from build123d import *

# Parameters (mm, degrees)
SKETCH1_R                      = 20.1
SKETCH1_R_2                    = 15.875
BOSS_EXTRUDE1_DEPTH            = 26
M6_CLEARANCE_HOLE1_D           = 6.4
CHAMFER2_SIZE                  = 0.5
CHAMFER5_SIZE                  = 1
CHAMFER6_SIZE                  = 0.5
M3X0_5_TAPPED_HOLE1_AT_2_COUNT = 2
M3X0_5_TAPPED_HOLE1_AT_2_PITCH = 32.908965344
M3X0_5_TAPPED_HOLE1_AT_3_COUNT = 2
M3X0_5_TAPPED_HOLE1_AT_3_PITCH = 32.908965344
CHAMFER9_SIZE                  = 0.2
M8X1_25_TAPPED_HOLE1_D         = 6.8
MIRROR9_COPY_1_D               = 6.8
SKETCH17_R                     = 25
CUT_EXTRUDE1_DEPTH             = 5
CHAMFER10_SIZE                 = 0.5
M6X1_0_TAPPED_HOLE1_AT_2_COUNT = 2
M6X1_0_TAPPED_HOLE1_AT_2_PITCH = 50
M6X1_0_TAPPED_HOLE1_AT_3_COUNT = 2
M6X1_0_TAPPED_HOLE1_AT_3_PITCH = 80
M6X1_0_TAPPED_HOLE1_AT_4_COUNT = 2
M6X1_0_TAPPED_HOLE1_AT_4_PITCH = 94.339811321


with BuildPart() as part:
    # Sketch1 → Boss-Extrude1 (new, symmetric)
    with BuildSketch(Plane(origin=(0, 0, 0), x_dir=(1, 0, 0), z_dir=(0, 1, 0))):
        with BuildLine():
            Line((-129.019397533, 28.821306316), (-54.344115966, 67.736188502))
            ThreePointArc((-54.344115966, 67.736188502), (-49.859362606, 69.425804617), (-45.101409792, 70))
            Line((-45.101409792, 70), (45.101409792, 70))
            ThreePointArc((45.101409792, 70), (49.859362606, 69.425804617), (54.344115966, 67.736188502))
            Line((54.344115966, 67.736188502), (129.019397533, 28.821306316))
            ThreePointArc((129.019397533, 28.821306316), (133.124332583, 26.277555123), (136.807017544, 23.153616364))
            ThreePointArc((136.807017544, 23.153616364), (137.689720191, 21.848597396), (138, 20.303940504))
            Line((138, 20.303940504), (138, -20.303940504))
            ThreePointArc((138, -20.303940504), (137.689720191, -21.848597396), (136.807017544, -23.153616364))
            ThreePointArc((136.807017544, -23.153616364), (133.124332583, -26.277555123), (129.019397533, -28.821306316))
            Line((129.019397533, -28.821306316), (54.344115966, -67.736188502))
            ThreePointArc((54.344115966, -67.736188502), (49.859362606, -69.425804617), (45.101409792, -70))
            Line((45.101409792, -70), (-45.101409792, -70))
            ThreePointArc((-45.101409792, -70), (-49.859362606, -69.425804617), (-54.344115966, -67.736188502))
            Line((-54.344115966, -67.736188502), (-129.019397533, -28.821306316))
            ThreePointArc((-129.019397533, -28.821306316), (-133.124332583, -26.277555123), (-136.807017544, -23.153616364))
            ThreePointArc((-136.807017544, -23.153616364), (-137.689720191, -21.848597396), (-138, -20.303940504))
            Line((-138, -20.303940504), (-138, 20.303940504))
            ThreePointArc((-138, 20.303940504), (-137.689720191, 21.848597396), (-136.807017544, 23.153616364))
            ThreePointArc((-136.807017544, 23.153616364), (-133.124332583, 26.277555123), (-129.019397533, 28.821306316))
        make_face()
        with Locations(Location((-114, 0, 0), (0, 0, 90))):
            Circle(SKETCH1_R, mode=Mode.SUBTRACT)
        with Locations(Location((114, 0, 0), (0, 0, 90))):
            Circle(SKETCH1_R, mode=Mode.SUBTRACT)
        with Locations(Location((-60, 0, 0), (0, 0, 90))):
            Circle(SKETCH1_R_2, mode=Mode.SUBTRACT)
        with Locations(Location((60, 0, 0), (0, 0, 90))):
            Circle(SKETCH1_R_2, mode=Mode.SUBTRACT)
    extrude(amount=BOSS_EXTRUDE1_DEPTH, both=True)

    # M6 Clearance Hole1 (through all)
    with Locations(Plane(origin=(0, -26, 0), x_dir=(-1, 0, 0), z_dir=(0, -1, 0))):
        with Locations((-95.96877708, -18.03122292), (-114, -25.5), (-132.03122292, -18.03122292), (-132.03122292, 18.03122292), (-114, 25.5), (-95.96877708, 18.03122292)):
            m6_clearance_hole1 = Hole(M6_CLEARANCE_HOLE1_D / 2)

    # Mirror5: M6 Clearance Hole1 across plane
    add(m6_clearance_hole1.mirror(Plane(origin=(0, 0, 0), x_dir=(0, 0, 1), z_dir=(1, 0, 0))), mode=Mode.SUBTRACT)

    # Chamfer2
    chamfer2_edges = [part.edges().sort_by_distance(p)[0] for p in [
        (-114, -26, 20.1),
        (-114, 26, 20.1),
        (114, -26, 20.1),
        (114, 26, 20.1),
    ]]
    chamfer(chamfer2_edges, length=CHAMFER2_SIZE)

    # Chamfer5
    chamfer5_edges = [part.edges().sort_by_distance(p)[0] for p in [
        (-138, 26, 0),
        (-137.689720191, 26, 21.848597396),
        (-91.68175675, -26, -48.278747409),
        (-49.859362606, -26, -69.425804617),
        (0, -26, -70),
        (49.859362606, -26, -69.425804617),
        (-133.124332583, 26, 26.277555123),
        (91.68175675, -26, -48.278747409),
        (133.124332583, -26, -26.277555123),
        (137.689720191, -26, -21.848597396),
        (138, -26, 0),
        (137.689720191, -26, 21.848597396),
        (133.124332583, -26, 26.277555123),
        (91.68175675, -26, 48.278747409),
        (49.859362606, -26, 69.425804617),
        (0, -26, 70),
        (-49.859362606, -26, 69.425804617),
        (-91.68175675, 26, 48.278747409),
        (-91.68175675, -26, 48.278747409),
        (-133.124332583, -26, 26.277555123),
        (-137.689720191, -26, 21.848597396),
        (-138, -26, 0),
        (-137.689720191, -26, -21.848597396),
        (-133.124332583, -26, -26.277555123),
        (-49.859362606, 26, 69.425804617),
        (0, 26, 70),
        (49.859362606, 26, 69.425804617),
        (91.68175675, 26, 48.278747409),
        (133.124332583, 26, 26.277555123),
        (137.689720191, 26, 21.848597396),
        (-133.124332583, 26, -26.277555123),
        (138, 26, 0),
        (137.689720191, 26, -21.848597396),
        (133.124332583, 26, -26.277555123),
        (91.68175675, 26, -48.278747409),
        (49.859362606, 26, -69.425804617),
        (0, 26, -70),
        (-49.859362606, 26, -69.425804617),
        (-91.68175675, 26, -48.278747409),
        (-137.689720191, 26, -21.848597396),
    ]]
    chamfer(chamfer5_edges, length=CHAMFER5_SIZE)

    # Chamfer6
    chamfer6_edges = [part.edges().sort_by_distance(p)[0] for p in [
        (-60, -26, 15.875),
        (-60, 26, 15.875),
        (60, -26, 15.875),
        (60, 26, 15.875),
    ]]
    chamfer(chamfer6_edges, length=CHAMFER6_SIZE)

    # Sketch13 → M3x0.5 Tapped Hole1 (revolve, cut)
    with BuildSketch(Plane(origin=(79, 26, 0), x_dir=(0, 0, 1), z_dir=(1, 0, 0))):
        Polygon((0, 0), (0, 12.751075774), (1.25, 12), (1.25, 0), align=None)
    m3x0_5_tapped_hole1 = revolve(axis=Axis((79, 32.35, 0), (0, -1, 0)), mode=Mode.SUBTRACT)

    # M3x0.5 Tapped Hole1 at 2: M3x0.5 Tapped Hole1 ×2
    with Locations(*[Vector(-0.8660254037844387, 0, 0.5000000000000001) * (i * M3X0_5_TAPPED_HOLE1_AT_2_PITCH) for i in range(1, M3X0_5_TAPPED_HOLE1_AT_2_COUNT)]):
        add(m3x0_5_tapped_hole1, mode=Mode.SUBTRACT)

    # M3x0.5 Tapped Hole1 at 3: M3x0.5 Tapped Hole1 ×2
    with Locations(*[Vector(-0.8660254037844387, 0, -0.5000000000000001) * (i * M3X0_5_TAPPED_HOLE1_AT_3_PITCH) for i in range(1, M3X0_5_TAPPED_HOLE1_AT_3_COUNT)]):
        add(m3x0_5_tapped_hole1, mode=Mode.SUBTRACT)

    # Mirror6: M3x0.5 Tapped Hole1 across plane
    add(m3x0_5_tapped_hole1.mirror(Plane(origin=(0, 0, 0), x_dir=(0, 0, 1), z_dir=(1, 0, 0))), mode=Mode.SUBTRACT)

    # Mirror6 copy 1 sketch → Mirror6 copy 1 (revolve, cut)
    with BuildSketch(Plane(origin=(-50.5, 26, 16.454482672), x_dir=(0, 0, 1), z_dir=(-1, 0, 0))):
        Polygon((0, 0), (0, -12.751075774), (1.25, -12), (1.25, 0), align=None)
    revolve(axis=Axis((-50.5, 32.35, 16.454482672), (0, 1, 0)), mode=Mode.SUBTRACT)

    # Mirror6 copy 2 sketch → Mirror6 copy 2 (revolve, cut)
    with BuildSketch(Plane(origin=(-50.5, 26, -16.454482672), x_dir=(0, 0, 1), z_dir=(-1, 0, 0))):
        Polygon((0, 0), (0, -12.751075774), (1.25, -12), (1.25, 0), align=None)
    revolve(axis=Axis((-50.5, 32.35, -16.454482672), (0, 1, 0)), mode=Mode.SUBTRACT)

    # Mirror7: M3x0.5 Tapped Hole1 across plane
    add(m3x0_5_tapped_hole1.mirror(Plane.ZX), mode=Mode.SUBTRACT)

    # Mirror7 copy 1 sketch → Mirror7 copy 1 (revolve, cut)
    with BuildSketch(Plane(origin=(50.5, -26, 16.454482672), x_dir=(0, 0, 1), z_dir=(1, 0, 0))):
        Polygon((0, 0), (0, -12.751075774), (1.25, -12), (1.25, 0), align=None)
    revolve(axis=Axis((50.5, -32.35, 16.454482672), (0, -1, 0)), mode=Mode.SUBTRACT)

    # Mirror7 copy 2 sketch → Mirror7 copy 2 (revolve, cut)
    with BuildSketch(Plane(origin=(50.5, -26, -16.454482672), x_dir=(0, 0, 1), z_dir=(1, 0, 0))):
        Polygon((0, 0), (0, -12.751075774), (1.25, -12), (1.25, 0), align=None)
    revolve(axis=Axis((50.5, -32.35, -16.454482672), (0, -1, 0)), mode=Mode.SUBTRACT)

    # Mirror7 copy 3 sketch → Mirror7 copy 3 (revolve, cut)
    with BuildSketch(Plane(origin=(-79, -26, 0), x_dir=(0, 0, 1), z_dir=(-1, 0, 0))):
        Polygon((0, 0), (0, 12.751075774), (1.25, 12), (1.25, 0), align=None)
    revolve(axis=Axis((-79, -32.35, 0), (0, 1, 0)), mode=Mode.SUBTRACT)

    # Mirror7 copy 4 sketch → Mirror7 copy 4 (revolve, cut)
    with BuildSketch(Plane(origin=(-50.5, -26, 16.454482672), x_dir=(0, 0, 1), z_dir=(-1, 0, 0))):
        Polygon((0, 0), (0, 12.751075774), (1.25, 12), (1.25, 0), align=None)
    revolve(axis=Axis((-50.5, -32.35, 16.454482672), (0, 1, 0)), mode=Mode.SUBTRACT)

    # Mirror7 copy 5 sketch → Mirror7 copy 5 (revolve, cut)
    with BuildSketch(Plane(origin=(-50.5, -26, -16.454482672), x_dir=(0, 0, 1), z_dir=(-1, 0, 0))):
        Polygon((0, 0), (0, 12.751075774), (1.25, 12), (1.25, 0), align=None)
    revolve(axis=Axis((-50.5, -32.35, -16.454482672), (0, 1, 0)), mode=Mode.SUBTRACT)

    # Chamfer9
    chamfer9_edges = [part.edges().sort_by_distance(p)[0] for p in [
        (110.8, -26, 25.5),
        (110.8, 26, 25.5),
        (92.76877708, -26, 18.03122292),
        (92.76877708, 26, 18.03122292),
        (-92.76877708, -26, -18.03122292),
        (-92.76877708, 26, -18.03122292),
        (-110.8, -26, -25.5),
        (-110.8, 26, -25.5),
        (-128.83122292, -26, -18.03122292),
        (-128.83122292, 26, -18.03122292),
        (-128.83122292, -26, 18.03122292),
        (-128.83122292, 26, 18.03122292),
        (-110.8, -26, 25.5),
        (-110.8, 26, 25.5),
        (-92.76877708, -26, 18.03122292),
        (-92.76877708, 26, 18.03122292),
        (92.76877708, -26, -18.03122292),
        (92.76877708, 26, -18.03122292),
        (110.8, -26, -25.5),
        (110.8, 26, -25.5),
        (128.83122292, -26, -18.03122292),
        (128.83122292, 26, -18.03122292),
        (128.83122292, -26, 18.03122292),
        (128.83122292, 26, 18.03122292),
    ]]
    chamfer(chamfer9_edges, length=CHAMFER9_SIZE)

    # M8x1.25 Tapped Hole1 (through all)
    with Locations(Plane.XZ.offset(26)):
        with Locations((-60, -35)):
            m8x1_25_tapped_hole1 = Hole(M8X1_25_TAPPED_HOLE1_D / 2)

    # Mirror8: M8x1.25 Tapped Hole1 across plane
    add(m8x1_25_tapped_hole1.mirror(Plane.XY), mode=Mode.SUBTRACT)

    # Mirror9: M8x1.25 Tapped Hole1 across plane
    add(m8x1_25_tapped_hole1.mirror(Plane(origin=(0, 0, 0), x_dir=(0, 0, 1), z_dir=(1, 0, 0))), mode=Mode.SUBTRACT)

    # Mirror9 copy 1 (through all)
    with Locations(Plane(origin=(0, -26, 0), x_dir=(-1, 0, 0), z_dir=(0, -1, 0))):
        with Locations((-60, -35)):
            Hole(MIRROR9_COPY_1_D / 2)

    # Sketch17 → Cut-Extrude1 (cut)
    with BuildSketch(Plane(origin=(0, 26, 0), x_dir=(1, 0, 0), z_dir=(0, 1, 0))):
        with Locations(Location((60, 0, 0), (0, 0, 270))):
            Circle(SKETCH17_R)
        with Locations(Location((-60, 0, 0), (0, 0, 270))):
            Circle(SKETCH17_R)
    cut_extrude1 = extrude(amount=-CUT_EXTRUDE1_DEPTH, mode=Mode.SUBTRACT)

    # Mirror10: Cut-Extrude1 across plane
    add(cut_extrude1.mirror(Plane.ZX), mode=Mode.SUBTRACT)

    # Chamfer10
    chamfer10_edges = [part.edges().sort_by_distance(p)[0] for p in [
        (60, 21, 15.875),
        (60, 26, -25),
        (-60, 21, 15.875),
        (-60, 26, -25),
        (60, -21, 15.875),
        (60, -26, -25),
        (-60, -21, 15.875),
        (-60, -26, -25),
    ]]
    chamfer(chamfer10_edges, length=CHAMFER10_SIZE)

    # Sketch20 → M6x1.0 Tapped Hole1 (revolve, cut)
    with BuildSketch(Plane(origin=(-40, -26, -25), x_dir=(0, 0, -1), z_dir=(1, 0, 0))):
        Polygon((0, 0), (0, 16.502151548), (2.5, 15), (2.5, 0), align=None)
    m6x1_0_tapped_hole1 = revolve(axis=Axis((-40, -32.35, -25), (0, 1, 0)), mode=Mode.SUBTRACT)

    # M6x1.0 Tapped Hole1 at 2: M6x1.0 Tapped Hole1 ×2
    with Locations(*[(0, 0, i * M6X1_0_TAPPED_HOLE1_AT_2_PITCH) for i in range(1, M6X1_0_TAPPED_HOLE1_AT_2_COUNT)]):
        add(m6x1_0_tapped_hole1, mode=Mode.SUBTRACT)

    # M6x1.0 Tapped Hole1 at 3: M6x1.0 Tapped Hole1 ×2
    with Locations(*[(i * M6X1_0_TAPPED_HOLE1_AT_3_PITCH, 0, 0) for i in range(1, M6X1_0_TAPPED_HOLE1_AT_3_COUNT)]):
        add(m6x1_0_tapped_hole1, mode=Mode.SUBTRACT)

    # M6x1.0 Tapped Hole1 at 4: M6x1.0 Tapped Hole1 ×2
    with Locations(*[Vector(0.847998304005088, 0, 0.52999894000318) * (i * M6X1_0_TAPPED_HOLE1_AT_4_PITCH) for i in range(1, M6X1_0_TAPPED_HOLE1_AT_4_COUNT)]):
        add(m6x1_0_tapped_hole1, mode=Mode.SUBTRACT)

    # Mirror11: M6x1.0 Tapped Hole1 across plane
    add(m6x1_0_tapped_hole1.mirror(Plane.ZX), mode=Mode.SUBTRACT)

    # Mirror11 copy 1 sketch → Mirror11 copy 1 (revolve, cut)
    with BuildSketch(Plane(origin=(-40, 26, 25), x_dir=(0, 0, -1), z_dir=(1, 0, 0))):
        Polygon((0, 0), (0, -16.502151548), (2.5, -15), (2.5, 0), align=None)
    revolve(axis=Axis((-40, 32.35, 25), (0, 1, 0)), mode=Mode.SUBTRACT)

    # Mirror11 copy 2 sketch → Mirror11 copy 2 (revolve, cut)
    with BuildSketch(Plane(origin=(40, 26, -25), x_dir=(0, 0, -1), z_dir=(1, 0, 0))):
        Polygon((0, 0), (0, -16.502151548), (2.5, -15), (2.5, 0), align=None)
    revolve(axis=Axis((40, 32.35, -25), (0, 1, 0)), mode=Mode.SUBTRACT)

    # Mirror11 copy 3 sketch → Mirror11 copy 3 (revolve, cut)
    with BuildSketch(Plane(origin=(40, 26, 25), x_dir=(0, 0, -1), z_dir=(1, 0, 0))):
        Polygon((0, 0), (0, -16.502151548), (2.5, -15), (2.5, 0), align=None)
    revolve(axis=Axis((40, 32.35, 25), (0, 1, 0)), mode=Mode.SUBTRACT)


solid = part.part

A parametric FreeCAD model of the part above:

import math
import FreeCAD as App
import Part
import Sketcher
Q = App.Units.Quantity


def edges_at(feature, points):
    """Names of the edges that pass closest to the given points."""
    edges = feature.Shape.Edges
    near = lambda p: min(range(len(edges)), key=lambda i: edges[i].distToShape(Part.Vertex(*p))[0])
    return sorted({f"Edge{near(p) + 1}" for p in points})


def add_polygon(sketch, points):
    """Adds a closed chain of lines whose ends are joined by coincident constraints."""
    first, n = sketch.GeometryCount, len(points)
    for a, b in zip(points, points[1:] + points[:1]):
        sketch.addGeometry(Part.LineSegment(App.Vector(*a, 0), App.Vector(*b, 0)), False)
    for i in range(n):
        sketch.addConstraint(Sketcher.Constraint("Coincident", first + i, 2, first + (i + 1) % n, 1))

doc = App.newDocument("Part")
body = doc.addObject("PartDesign::Body", "Body")

sketch1 = body.newObject("Sketcher::SketchObject", "Sketch")
sketch1.AttachmentSupport = (doc.getObject("XZ_Plane"), [""])
sketch1.MapMode = "FlatFace"
sketch1.addGeometry([
    Part.LineSegment(App.Vector(-54.344116, -67.736189, 0), App.Vector(-129.019398, -28.821306, 0)),
    Part.ArcOfCircle(Part.Circle(App.Vector(-114, 0, 0), App.Vector(0, 0, 1), 32.5), math.radians(-134.567929), math.radians(-117.524981)),
    Part.ArcOfCircle(Part.Circle(App.Vector(-134, -20.303941, 0), App.Vector(0, 0, 1), 4), math.radians(180), math.radians(225.432071)),
    Part.LineSegment(App.Vector(-138, -20.303941, 0), App.Vector(-138, 20.303941, 0)),
    Part.ArcOfCircle(Part.Circle(App.Vector(-134, 20.303941, 0), App.Vector(0, 0, 1), 4), math.radians(134.567929), math.radians(180)),
    Part.ArcOfCircle(Part.Circle(App.Vector(-114, 0, 0), App.Vector(0, 0, 1), 32.5), math.radians(117.524981), math.radians(134.567929)),
    Part.LineSegment(App.Vector(-129.019398, 28.821306, 0), App.Vector(-54.344116, 67.736189, 0)),
    Part.ArcOfCircle(Part.Circle(App.Vector(-45.10141, 50, 0), App.Vector(0, 0, 1), 20), math.radians(90), math.radians(117.524981)),
    Part.LineSegment(App.Vector(-45.10141, 70, 0), App.Vector(45.10141, 70, 0)),
    Part.ArcOfCircle(Part.Circle(App.Vector(45.10141, 50, 0), App.Vector(0, 0, 1), 20), math.radians(62.475019), math.radians(90)),
    Part.LineSegment(App.Vector(54.344116, 67.736189, 0), App.Vector(129.019398, 28.821306, 0)),
    Part.ArcOfCircle(Part.Circle(App.Vector(114, 0, 0), App.Vector(0, 0, 1), 32.5), math.radians(45.432071), math.radians(62.475019)),
    Part.ArcOfCircle(Part.Circle(App.Vector(134, 20.303941, 0), App.Vector(0, 0, 1), 4), math.radians(0), math.radians(45.432071)),
    Part.LineSegment(App.Vector(138, 20.303941, 0), App.Vector(138, -20.303941, 0)),
    Part.ArcOfCircle(Part.Circle(App.Vector(134, -20.303941, 0), App.Vector(0, 0, 1), 4), math.radians(-45.432071), math.radians(0)),
    Part.ArcOfCircle(Part.Circle(App.Vector(114, 0, 0), App.Vector(0, 0, 1), 32.5), math.radians(-62.475019), math.radians(-45.432071)),
    Part.LineSegment(App.Vector(129.019398, -28.821306, 0), App.Vector(54.344116, -67.736189, 0)),
    Part.ArcOfCircle(Part.Circle(App.Vector(45.10141, -50, 0), App.Vector(0, 0, 1), 20), math.radians(-90), math.radians(-62.475019)),
    Part.LineSegment(App.Vector(45.10141, -70, 0), App.Vector(-45.10141, -70, 0)),
    Part.ArcOfCircle(Part.Circle(App.Vector(-45.10141, -50, 0), App.Vector(0, 0, 1), 20), math.radians(-117.524981), math.radians(-90)),
    Part.Circle(App.Vector(114, 0, 0), App.Vector(0, 0, 1), 20.1),
    Part.Circle(App.Vector(60, 0, 0), App.Vector(0, 0, 1), 15.875),
    Part.Circle(App.Vector(-60, 0, 0), App.Vector(0, 0, 1), 15.875),
    Part.Circle(App.Vector(-114, 0, 0), App.Vector(0, 0, 1), 20.1),
], False)
sketch1.addConstraint([
    Sketcher.Constraint("Tangent", 0, 2, 1, 2),
    Sketcher.Constraint("Tangent", 1, 1, 2, 2),
    Sketcher.Constraint("Tangent", 2, 1, 3, 1),
    Sketcher.Constraint("Tangent", 3, 2, 4, 2),
    Sketcher.Constraint("Tangent", 4, 1, 5, 2),
    Sketcher.Constraint("Tangent", 5, 1, 6, 1),
    Sketcher.Constraint("Tangent", 6, 2, 7, 2),
    Sketcher.Constraint("Tangent", 7, 1, 8, 1),
    Sketcher.Constraint("Tangent", 8, 2, 9, 2),
    Sketcher.Constraint("Tangent", 9, 1, 10, 1),
    Sketcher.Constraint("Tangent", 10, 2, 11, 2),
    Sketcher.Constraint("Tangent", 11, 1, 12, 2),
    Sketcher.Constraint("Tangent", 12, 1, 13, 1),
    Sketcher.Constraint("Tangent", 13, 2, 14, 2),
    Sketcher.Constraint("Tangent", 14, 1, 15, 2),
    Sketcher.Constraint("Tangent", 15, 1, 16, 1),
    Sketcher.Constraint("Tangent", 16, 2, 17, 2),
    Sketcher.Constraint("Tangent", 17, 1, 18, 1),
    Sketcher.Constraint("Tangent", 18, 2, 19, 2),
    Sketcher.Constraint("Tangent", 19, 1, 0, 1),
    Sketcher.Constraint("Vertical", 3),
    Sketcher.Constraint("Horizontal", 8),
    Sketcher.Constraint("Vertical", 13),
    Sketcher.Constraint("Horizontal", 18),
    Sketcher.Constraint("Coincident", 5, 3, 1, 3),
    Sketcher.Constraint("Coincident", 15, 3, 11, 3),
    Sketcher.Constraint("Coincident", 20, 3, 11, 3),
    Sketcher.Constraint("Coincident", 23, 3, 1, 3),
    Sketcher.Constraint("Equal", 2, 4),
    Sketcher.Constraint("Equal", 1, 5),
    Sketcher.Constraint("Equal", 7, 9),
    Sketcher.Constraint("Equal", 5, 11),
    Sketcher.Constraint("Equal", 4, 12),
    Sketcher.Constraint("Equal", 12, 14),
    Sketcher.Constraint("Equal", 11, 15),
    Sketcher.Constraint("Equal", 9, 17),
    Sketcher.Constraint("Equal", 17, 19),
    Sketcher.Constraint("Equal", 21, 22),
    Sketcher.Constraint("Equal", 20, 23),
    Sketcher.Constraint("Symmetric", 1, 3, 11, 3, -1, 1),
    Sketcher.Constraint("Symmetric", 7, 3, 17, 3, -1, 1),
    Sketcher.Constraint("Symmetric", 21, 3, 22, 3, -1, 1),
    Sketcher.Constraint("Symmetric", 4, 3, 12, 3, -2),
    Sketcher.Constraint("PointOnObject", 21, 3, -1),
    Sketcher.Constraint("Parallel", 0, 10),
    Sketcher.Constraint("Horizontal", 6, 2, 9, 1),
    Sketcher.Constraint("Radius", 2, Q("4 mm")),
    Sketcher.Constraint("Radius", 7, Q("20 mm")),
    Sketcher.Constraint("Diameter", 20, Q("40.2 mm")),
    Sketcher.Constraint("Radius", 1, Q("32.5 mm")),
    Sketcher.Constraint("Diameter", 21, Q("31.75 mm")),
    Sketcher.Constraint("DistanceX", 1, 3, -1, 1, Q("114 mm")),
    Sketcher.Constraint("DistanceX", 2, 3, -1, 1, Q("134 mm")),
    Sketcher.Constraint("DistanceY", -1, 1, 7, 3, Q("50 mm")),
    Sketcher.Constraint("DistanceX", -1, 1, 21, 3, Q("60 mm")),
    Sketcher.Constraint("DistanceX", 8, 1, 8, 2, Q("90.20282 mm")),
])
pad1 = body.newObject("PartDesign::Pad", "Pad")
pad1.Profile = sketch1
pad1.Length = 52
pad1.Midplane = True

sketch2 = body.newObject("Sketcher::SketchObject", "Sketch001")
sketch2.AttachmentSupport = (doc.getObject("XZ_Plane"), [""])
sketch2.MapMode = "FlatFace"
sketch2.AttachmentOffset = App.Placement(App.Vector(0, 0, 26), App.Rotation())
sketch2.addGeometry([
    Part.Circle(App.Vector(95.968777, 18.031223, 0), App.Vector(0, 0, 1), 3.2),
    Part.Circle(App.Vector(114, 25.5, 0), App.Vector(0, 0, 1), 3.2),
    Part.Circle(App.Vector(132.031223, 18.031223, 0), App.Vector(0, 0, 1), 3.2),
    Part.Circle(App.Vector(132.031223, -18.031223, 0), App.Vector(0, 0, 1), 3.2),
    Part.Circle(App.Vector(114, -25.5, 0), App.Vector(0, 0, 1), 3.2),
    Part.Circle(App.Vector(95.968777, -18.031223, 0), App.Vector(0, 0, 1), 3.2),
], False)
sketch2.addConstraint([
    Sketcher.Constraint("Equal", 0, 1),
    Sketcher.Constraint("Equal", 1, 2),
    Sketcher.Constraint("Equal", 2, 3),
    Sketcher.Constraint("Equal", 3, 4),
    Sketcher.Constraint("Equal", 4, 5),
    Sketcher.Constraint("Symmetric", 2, 3, 3, 3, -1),
    Sketcher.Constraint("Symmetric", 1, 3, 4, 3, -1),
    Sketcher.Constraint("Symmetric", 0, 3, 5, 3, -1),
    Sketcher.Constraint("Horizontal", 0, 3, 2, 3),
    Sketcher.Constraint("Diameter", 0, Q("6.4 mm")),
    Sketcher.Constraint("DistanceX", -1, 1, 1, 3, Q("114 mm")),
    Sketcher.Constraint("DistanceY", 4, 3, 1, 3, Q("51 mm")),
    Sketcher.Constraint("DistanceX", -1, 1, 0, 3, Q("95.968777 mm")),
    Sketcher.Constraint("DistanceY", -1, 1, 0, 3, Q("18.031223 mm")),
    Sketcher.Constraint("DistanceX", -1, 1, 2, 3, Q("132.031223 mm")),
])
doc.recompute()
hole = body.newObject("PartDesign::Hole", "Hole")
hole.Profile = sketch2
hole.ThreadType = "None"
hole.Diameter = 6.4
hole.DepthType = "ThroughAll"
doc.recompute()

mirrored = body.newObject("PartDesign::Mirrored", "Mirrored")
mirrored.Originals = [hole]
mirrored.MirrorPlane = (doc.getObject("YZ_Plane"), [""])
body.Tip = mirrored
doc.recompute()

chamfer = body.newObject("PartDesign::Chamfer", "Chamfer")
chamfer.Base = (mirrored, edges_at(mirrored, [
    (-114, -26, 20.1),
    (-114, 26, 20.1),
    (114, -26, 20.1),
    (114, 26, 20.1),
]))
chamfer.Size = 0.5
doc.recompute()

chamfer2 = body.newObject("PartDesign::Chamfer", "Chamfer001")
chamfer2.Base = (chamfer, edges_at(chamfer, [
    (-138, 26, 0),
    (-137.69, 26, 21.849),
    (-91.682, -26, -48.279),
    (-49.859, -26, -69.426),
    (0, -26, -70),
    (49.859, -26, -69.426),
    (-133.124, 26, 26.278),
    (91.682, -26, -48.279),
    (133.124, -26, -26.278),
    (137.69, -26, -21.849),
    (138, -26, 0),
    (137.69, -26, 21.849),
    (133.124, -26, 26.278),
    (91.682, -26, 48.279),
    (49.859, -26, 69.426),
    (0, -26, 70),
    (-49.859, -26, 69.426),
    (-91.682, 26, 48.279),
    (-91.682, -26, 48.279),
    (-133.124, -26, 26.278),
    (-137.69, -26, 21.849),
    (-138, -26, 0),
    (-137.69, -26, -21.849),
    (-133.124, -26, -26.278),
    (-49.859, 26, 69.426),
    (0, 26, 70),
    (49.859, 26, 69.426),
    (91.682, 26, 48.279),
    (133.124, 26, 26.278),
    (137.69, 26, 21.849),
    (-133.124, 26, -26.278),
    (138, 26, 0),
    (137.69, 26, -21.849),
    (133.124, 26, -26.278),
    (91.682, 26, -48.279),
    (49.859, 26, -69.426),
    (0, 26, -70),
    (-49.859, 26, -69.426),
    (-91.682, 26, -48.279),
    (-137.69, 26, -21.849),
]))
chamfer2.Size = 1
doc.recompute()

chamfer3 = body.newObject("PartDesign::Chamfer", "Chamfer002")
chamfer3.Base = (chamfer2, edges_at(chamfer2, [
    (-60, -26, 15.875),
    (-60, 26, 15.875),
    (60, -26, 15.875),
    (60, 26, 15.875),
]))
chamfer3.Size = 0.5

sketch3 = body.newObject("Sketcher::SketchObject", "Sketch002")
sketch3.AttachmentSupport = (doc.getObject("YZ_Plane"), [""])
sketch3.MapMode = "FlatFace"
sketch3.AttachmentOffset = App.Placement(App.Vector(0, 0, 79), App.Rotation())
add_polygon(sketch3, [(13.248924, 0), (26, 0), (26, 1.25), (14, 1.25)])
sketch3.addConstraint([
    Sketcher.Constraint("Horizontal", 0),
    Sketcher.Constraint("Vertical", 1),
    Sketcher.Constraint("Horizontal", 2),
    Sketcher.Constraint("PointOnObject", 0, 2, -1),
    Sketcher.Constraint("DistanceX", 2, 2, 2, 1, Q("12 mm")),
    Sketcher.Constraint("Angle", 3, Q("-121 deg")),
    Sketcher.Constraint("DistanceX", -1, 1, 0, 2, Q("26 mm")),
    Sketcher.Constraint("DistanceY", 1, 1, 1, 2, Q("1.25 mm")),
])
groove = body.newObject("PartDesign::Groove", "Groove")
groove.Profile = sketch3
groove.ReferenceAxis = (sketch3, ["H_Axis"])
groove.Angle = 360
doc.recompute()

datumline = body.newObject("PartDesign::Line", "DatumLine")
datumline.Placement = App.Placement(App.Vector(0, 0, 0), App.Rotation(App.Vector(0, 0, 1), App.Vector(-0.866025404, 0, 0.5)))
linearpattern = body.newObject("PartDesign::LinearPattern", "LinearPattern")
linearpattern.Originals = [groove]
linearpattern.Direction = (datumline, [""])
linearpattern.Mode = "offset"
linearpattern.Offset = 32.908965
linearpattern.Occurrences = 2
body.Tip = linearpattern
doc.recompute()

datumline2 = body.newObject("PartDesign::Line", "DatumLine001")
datumline2.Placement = App.Placement(App.Vector(0, 0, 0), App.Rotation(App.Vector(0, 0, 1), App.Vector(-0.866025404, 0, -0.5)))
linearpattern2 = body.newObject("PartDesign::LinearPattern", "LinearPattern001")
linearpattern2.Originals = [groove]
linearpattern2.Direction = (datumline2, [""])
linearpattern2.Mode = "offset"
linearpattern2.Offset = 32.908965
linearpattern2.Occurrences = 2
body.Tip = linearpattern2
doc.recompute()

mirrored2 = body.newObject("PartDesign::Mirrored", "Mirrored001")
mirrored2.Originals = [groove]
mirrored2.MirrorPlane = (doc.getObject("YZ_Plane"), [""])
body.Tip = mirrored2

sketch4 = body.newObject("Sketcher::SketchObject", "Sketch003")
sketch4.AttachmentSupport = (doc.getObject("YZ_Plane"), [""])
sketch4.MapMode = "FlatFace"
sketch4.AttachmentOffset = App.Placement(App.Vector(0, 0, -50.5), App.Rotation())
add_polygon(sketch4, [(26, 16.454483), (13.248924, 16.454483), (14, 17.704483), (26, 17.704483)])
sketch4.addGeometry(Part.LineSegment(App.Vector(13.248924, 16.454483, 0), App.Vector(26, 16.454483, 0)), True)
sketch4.addConstraint([
    Sketcher.Constraint("Horizontal", 0),
    Sketcher.Constraint("Horizontal", 2),
    Sketcher.Constraint("Vertical", 3),
    Sketcher.Constraint("Horizontal", 4),
    Sketcher.Constraint("Coincident", 4, 1, 0, 2),
    Sketcher.Constraint("Vertical", 2, 2, 4, 2),
    Sketcher.Constraint("DistanceX", 2, 1, 2, 2, Q("12 mm")),
    Sketcher.Constraint("Angle", 1, Q("59 deg")),
    Sketcher.Constraint("DistanceX", -1, 1, 1, 2, Q("14 mm")),
    Sketcher.Constraint("DistanceY", 3, 2, 3, 1, Q("1.25 mm")),
    Sketcher.Constraint("DistanceY", -1, 1, 0, 2, Q("16.454483 mm")),
])
groove2 = body.newObject("PartDesign::Groove", "Groove001")
groove2.Profile = sketch4
groove2.ReferenceAxis = (sketch4, ["Axis0"])
groove2.Angle = 360

sketch5 = body.newObject("Sketcher::SketchObject", "Sketch004")
sketch5.AttachmentSupport = (doc.getObject("YZ_Plane"), [""])
sketch5.MapMode = "FlatFace"
sketch5.AttachmentOffset = App.Placement(App.Vector(0, 0, -50.5), App.Rotation())
add_polygon(sketch5, [(26, -16.454483), (13.248924, -16.454483), (14, -15.204483), (26, -15.204483)])
sketch5.addGeometry(Part.LineSegment(App.Vector(13.248924, -16.454483, 0), App.Vector(26, -16.454483, 0)), True)
sketch5.addConstraint([
    Sketcher.Constraint("Horizontal", 0),
    Sketcher.Constraint("Horizontal", 2),
    Sketcher.Constraint("Vertical", 3),
    Sketcher.Constraint("Horizontal", 4),
    Sketcher.Constraint("Coincident", 4, 1, 0, 2),
    Sketcher.Constraint("Vertical", 2, 2, 4, 2),
    Sketcher.Constraint("DistanceX", 2, 1, 2, 2, Q("12 mm")),
    Sketcher.Constraint("Angle", 1, Q("59 deg")),
    Sketcher.Constraint("DistanceX", -1, 1, 1, 2, Q("14 mm")),
    Sketcher.Constraint("DistanceY", 3, 2, 3, 1, Q("1.25 mm")),
    Sketcher.Constraint("DistanceY", 0, 2, -1, 1, Q("16.454483 mm")),
])
groove3 = body.newObject("PartDesign::Groove", "Groove002")
groove3.Profile = sketch5
groove3.ReferenceAxis = (sketch5, ["Axis0"])
groove3.Angle = 360
doc.recompute()

mirrored3 = body.newObject("PartDesign::Mirrored", "Mirrored002")
mirrored3.Originals = [groove]
mirrored3.MirrorPlane = (doc.getObject("XZ_Plane"), [""])
body.Tip = mirrored3

sketch6 = body.newObject("Sketcher::SketchObject", "Sketch005")
sketch6.AttachmentSupport = (doc.getObject("YZ_Plane"), [""])
sketch6.MapMode = "FlatFace"
sketch6.AttachmentOffset = App.Placement(App.Vector(0, 0, 50.5), App.Rotation())
add_polygon(sketch6, [(-26, 16.454483), (-13.248924, 16.454483), (-14, 17.704483), (-26, 17.704483)])
sketch6.addGeometry(Part.LineSegment(App.Vector(-13.248924, 16.454483, 0), App.Vector(-26, 16.454483, 0)), True)
sketch6.addConstraint([
    Sketcher.Constraint("Horizontal", 0),
    Sketcher.Constraint("Horizontal", 2),
    Sketcher.Constraint("Vertical", 3),
    Sketcher.Constraint("Horizontal", 4),
    Sketcher.Constraint("Coincident", 4, 1, 0, 2),
    Sketcher.Constraint("Vertical", 2, 2, 4, 2),
    Sketcher.Constraint("DistanceX", 2, 2, 2, 1, Q("12 mm")),
    Sketcher.Constraint("Angle", 1, Q("121 deg")),
    Sketcher.Constraint("DistanceX", 1, 2, -1, 1, Q("14 mm")),
    Sketcher.Constraint("DistanceY", 3, 2, 3, 1, Q("1.25 mm")),
    Sketcher.Constraint("DistanceY", -1, 1, 0, 2, Q("16.454483 mm")),
])
groove4 = body.newObject("PartDesign::Groove", "Groove003")
groove4.Profile = sketch6
groove4.ReferenceAxis = (sketch6, ["Axis0"])
groove4.Angle = 360

sketch7 = body.newObject("Sketcher::SketchObject", "Sketch006")
sketch7.AttachmentSupport = (doc.getObject("YZ_Plane"), [""])
sketch7.MapMode = "FlatFace"
sketch7.AttachmentOffset = App.Placement(App.Vector(0, 0, 50.5), App.Rotation())
add_polygon(sketch7, [(-26, -16.454483), (-13.248924, -16.454483), (-14, -15.204483), (-26, -15.204483)])
sketch7.addGeometry(Part.LineSegment(App.Vector(-13.248924, -16.454483, 0), App.Vector(-26, -16.454483, 0)), True)
sketch7.addConstraint([
    Sketcher.Constraint("Horizontal", 0),
    Sketcher.Constraint("Horizontal", 2),
    Sketcher.Constraint("Vertical", 3),
    Sketcher.Constraint("Horizontal", 4),
    Sketcher.Constraint("Coincident", 4, 1, 0, 2),
    Sketcher.Constraint("Vertical", 2, 2, 4, 2),
    Sketcher.Constraint("DistanceX", 2, 2, 2, 1, Q("12 mm")),
    Sketcher.Constraint("Angle", 1, Q("121 deg")),
    Sketcher.Constraint("DistanceX", 1, 2, -1, 1, Q("14 mm")),
    Sketcher.Constraint("DistanceY", 3, 2, 3, 1, Q("1.25 mm")),
    Sketcher.Constraint("DistanceY", 0, 2, -1, 1, Q("16.454483 mm")),
])
groove5 = body.newObject("PartDesign::Groove", "Groove004")
groove5.Profile = sketch7
groove5.ReferenceAxis = (sketch7, ["Axis0"])
groove5.Angle = 360

sketch8 = body.newObject("Sketcher::SketchObject", "Sketch007")
sketch8.AttachmentSupport = (doc.getObject("YZ_Plane"), [""])
sketch8.MapMode = "FlatFace"
sketch8.AttachmentOffset = App.Placement(App.Vector(0, 0, -79), App.Rotation())
add_polygon(sketch8, [(-13.248924, 0), (-26, 0), (-26, 1.25), (-14, 1.25)])
sketch8.addConstraint([
    Sketcher.Constraint("Horizontal", 0),
    Sketcher.Constraint("Vertical", 1),
    Sketcher.Constraint("Horizontal", 2),
    Sketcher.Constraint("PointOnObject", 0, 2, -1),
    Sketcher.Constraint("DistanceX", 2, 1, 2, 2, Q("12 mm")),
    Sketcher.Constraint("Angle", 3, Q("-59 deg")),
    Sketcher.Constraint("DistanceX", 0, 2, -1, 1, Q("26 mm")),
    Sketcher.Constraint("DistanceY", 1, 1, 1, 2, Q("1.25 mm")),
])
groove6 = body.newObject("PartDesign::Groove", "Groove005")
groove6.Profile = sketch8
groove6.ReferenceAxis = (sketch8, ["H_Axis"])
groove6.Angle = 360

sketch9 = body.newObject("Sketcher::SketchObject", "Sketch008")
sketch9.AttachmentSupport = (doc.getObject("YZ_Plane"), [""])
sketch9.MapMode = "FlatFace"
sketch9.AttachmentOffset = App.Placement(App.Vector(0, 0, -50.5), App.Rotation())
add_polygon(sketch9, [(-13.248924, 16.454483), (-26, 16.454483), (-26, 17.704483), (-14, 17.704483)])
sketch9.addGeometry(Part.LineSegment(App.Vector(-26, 16.454483, 0), App.Vector(-13.248924, 16.454483, 0)), True)
sketch9.addConstraint([
    Sketcher.Constraint("Horizontal", 0),
    Sketcher.Constraint("Vertical", 1),
    Sketcher.Constraint("Horizontal", 2),
    Sketcher.Constraint("Horizontal", 4),
    Sketcher.Constraint("Coincident", 4, 1, 0, 2),
    Sketcher.Constraint("Equal", 0, 4),
    Sketcher.Constraint("DistanceX", 2, 1, 2, 2, Q("12 mm")),
    Sketcher.Constraint("Angle", 3, Q("-59 deg")),
    Sketcher.Constraint("DistanceX", 0, 2, -1, 1, Q("26 mm")),
    Sketcher.Constraint("DistanceY", 1, 1, 1, 2, Q("1.25 mm")),
    Sketcher.Constraint("DistanceY", -1, 1, 0, 2, Q("16.454483 mm")),
])
groove7 = body.newObject("PartDesign::Groove", "Groove006")
groove7.Profile = sketch9
groove7.ReferenceAxis = (sketch9, ["Axis0"])
groove7.Angle = 360

sketch10 = body.newObject("Sketcher::SketchObject", "Sketch009")
sketch10.AttachmentSupport = (doc.getObject("YZ_Plane"), [""])
sketch10.MapMode = "FlatFace"
sketch10.AttachmentOffset = App.Placement(App.Vector(0, 0, -50.5), App.Rotation())
add_polygon(sketch10, [(-13.248924, -16.454483), (-26, -16.454483), (-26, -15.204483), (-14, -15.204483)])
sketch10.addGeometry(Part.LineSegment(App.Vector(-26, -16.454483, 0), App.Vector(-13.248924, -16.454483, 0)), True)
sketch10.addConstraint([
    Sketcher.Constraint("Horizontal", 0),
    Sketcher.Constraint("Vertical", 1),
    Sketcher.Constraint("Horizontal", 2),
    Sketcher.Constraint("Horizontal", 4),
    Sketcher.Constraint("Coincident", 4, 1, 0, 2),
    Sketcher.Constraint("Equal", 0, 4),
    Sketcher.Constraint("DistanceX", 2, 1, 2, 2, Q("12 mm")),
    Sketcher.Constraint("Angle", 3, Q("-59 deg")),
    Sketcher.Constraint("DistanceX", 0, 2, -1, 1, Q("26 mm")),
    Sketcher.Constraint("DistanceY", 1, 1, 1, 2, Q("1.25 mm")),
    Sketcher.Constraint("DistanceY", 0, 2, -1, 1, Q("16.454483 mm")),
])
groove8 = body.newObject("PartDesign::Groove", "Groove007")
groove8.Profile = sketch10
groove8.ReferenceAxis = (sketch10, ["Axis0"])
groove8.Angle = 360
doc.recompute()

chamfer4 = body.newObject("PartDesign::Chamfer", "Chamfer003")
chamfer4.Base = (groove8, edges_at(groove8, [
    (110.8, -26, 25.5),
    (110.8, 26, 25.5),
    (92.769, -26, 18.031),
    (92.769, 26, 18.031),
    (-92.769, -26, -18.031),
    (-92.769, 26, -18.031),
    (-110.8, -26, -25.5),
    (-110.8, 26, -25.5),
    (-128.831, -26, -18.031),
    (-128.831, 26, -18.031),
    (-128.831, -26, 18.031),
    (-128.831, 26, 18.031),
    (-110.8, -26, 25.5),
    (-110.8, 26, 25.5),
    (-92.769, -26, 18.031),
    (-92.769, 26, 18.031),
    (92.769, -26, -18.031),
    (92.769, 26, -18.031),
    (110.8, -26, -25.5),
    (110.8, 26, -25.5),
    (128.831, -26, -18.031),
    (128.831, 26, -18.031),
    (128.831, -26, 18.031),
    (128.831, 26, 18.031),
]))
chamfer4.Size = 0.2

sketch11 = body.newObject("Sketcher::SketchObject", "Sketch010")
sketch11.AttachmentSupport = (doc.getObject("XZ_Plane"), [""])
sketch11.MapMode = "FlatFace"
sketch11.AttachmentOffset = App.Placement(App.Vector(0, 0, 26), App.Rotation())
sketch11.addGeometry(Part.Circle(App.Vector(-60, -35, 0), App.Vector(0, 0, 1), 3.4), False)
sketch11.addConstraint([
    Sketcher.Constraint("Diameter", 0, Q("6.8 mm")),
    Sketcher.Constraint("DistanceX", 0, 3, -1, 1, Q("60 mm")),
    Sketcher.Constraint("DistanceY", 0, 3, -1, 1, Q("35 mm")),
])
doc.recompute()
hole2 = body.newObject("PartDesign::Hole", "Hole001")
hole2.Profile = sketch11
hole2.ThreadType = "None"
hole2.Diameter = 6.8
hole2.DepthType = "ThroughAll"
doc.recompute()

mirrored4 = body.newObject("PartDesign::Mirrored", "Mirrored003")
mirrored4.Originals = [hole2]
mirrored4.MirrorPlane = (doc.getObject("XY_Plane"), [""])
body.Tip = mirrored4
doc.recompute()

mirrored5 = body.newObject("PartDesign::Mirrored", "Mirrored004")
mirrored5.Originals = [hole2]
mirrored5.MirrorPlane = (doc.getObject("YZ_Plane"), [""])
body.Tip = mirrored5

sketch12 = body.newObject("Sketcher::SketchObject", "Sketch011")
sketch12.AttachmentSupport = (doc.getObject("XZ_Plane"), [""])
sketch12.MapMode = "FlatFace"
sketch12.AttachmentOffset = App.Placement(App.Vector(0, 0, 26), App.Rotation())
sketch12.addGeometry(Part.Circle(App.Vector(60, 35, 0), App.Vector(0, 0, 1), 3.4), False)
sketch12.addConstraint([
    Sketcher.Constraint("Diameter", 0, Q("6.8 mm")),
    Sketcher.Constraint("DistanceX", -1, 1, 0, 3, Q("60 mm")),
    Sketcher.Constraint("DistanceY", -1, 1, 0, 3, Q("35 mm")),
])
doc.recompute()
hole3 = body.newObject("PartDesign::Hole", "Hole002")
hole3.Profile = sketch12
hole3.ThreadType = "None"
hole3.Diameter = 6.8
hole3.DepthType = "ThroughAll"

sketch13 = body.newObject("Sketcher::SketchObject", "Sketch012")
sketch13.AttachmentSupport = (doc.getObject("XZ_Plane"), [""])
sketch13.MapMode = "FlatFace"
sketch13.AttachmentOffset = App.Placement(App.Vector(0, 0, -26), App.Rotation())
sketch13.addGeometry([
    Part.Circle(App.Vector(60, 0, 0), App.Vector(0, 0, 1), 25),
    Part.Circle(App.Vector(-60, 0, 0), App.Vector(0, 0, 1), 25),
], False)
sketch13.addConstraint([
    Sketcher.Constraint("Equal", 0, 1),
    Sketcher.Constraint("Symmetric", 0, 3, 1, 3, -1, 1),
    Sketcher.Constraint("PointOnObject", 0, 3, -1),
    Sketcher.Constraint("Diameter", 0, Q("50 mm")),
    Sketcher.Constraint("DistanceX", -1, 1, 0, 3, Q("60 mm")),
])
pocket1 = body.newObject("PartDesign::Pocket", "Pocket")
pocket1.Profile = sketch13
pocket1.Length = 5
pocket1.Reversed = True
doc.recompute()

mirrored6 = body.newObject("PartDesign::Mirrored", "Mirrored005")
mirrored6.Originals = [pocket1]
mirrored6.MirrorPlane = (doc.getObject("XZ_Plane"), [""])
body.Tip = mirrored6
doc.recompute()

chamfer5 = body.newObject("PartDesign::Chamfer", "Chamfer004")
chamfer5.Base = (mirrored6, edges_at(mirrored6, [
    (60, 21, 15.875),
    (60, 26, -25),
    (-60, 21, 15.875),
    (-60, 26, -25),
    (60, -21, 15.875),
    (60, -26, -25),
    (-60, -21, 15.875),
    (-60, -26, -25),
]))
chamfer5.Size = 0.5

sketch14 = body.newObject("Sketcher::SketchObject", "Sketch013")
sketch14.AttachmentSupport = (doc.getObject("YZ_Plane"), [""])
sketch14.MapMode = "FlatFace"
sketch14.AttachmentOffset = App.Placement(App.Vector(0, 0, -40), App.Rotation())
add_polygon(sketch14, [(-9.497848, -25), (-26, -25), (-26, -27.5), (-11, -27.5)])
sketch14.addGeometry(Part.LineSegment(App.Vector(-26, -25, 0), App.Vector(-9.497848, -25, 0)), True)
sketch14.addConstraint([
    Sketcher.Constraint("Horizontal", 0),
    Sketcher.Constraint("Vertical", 1),
    Sketcher.Constraint("Horizontal", 2),
    Sketcher.Constraint("Horizontal", 4),
    Sketcher.Constraint("Coincident", 4, 1, 0, 2),
    Sketcher.Constraint("Equal", 0, 4),
    Sketcher.Constraint("DistanceX", 2, 1, 2, 2, Q("15 mm")),
    Sketcher.Constraint("Angle", 3, Q("59 deg")),
    Sketcher.Constraint("DistanceY", 1, 2, 1, 1, Q("2.5 mm")),
    Sketcher.Constraint("DistanceX", 0, 2, -1, 1, Q("26 mm")),
    Sketcher.Constraint("DistanceY", 0, 2, -1, 1, Q("25 mm")),
])
groove9 = body.newObject("PartDesign::Groove", "Groove008")
groove9.Profile = sketch14
groove9.ReferenceAxis = (sketch14, ["Axis0"])
groove9.Angle = 360
doc.recompute()

linearpattern3 = body.newObject("PartDesign::LinearPattern", "LinearPattern002")
linearpattern3.Originals = [groove9]
linearpattern3.Direction = (doc.getObject("Z_Axis"), [""])
linearpattern3.Mode = "offset"
linearpattern3.Offset = 50
linearpattern3.Occurrences = 2
body.Tip = linearpattern3
doc.recompute()

linearpattern4 = body.newObject("PartDesign::LinearPattern", "LinearPattern003")
linearpattern4.Originals = [groove9]
linearpattern4.Direction = (doc.getObject("X_Axis"), [""])
linearpattern4.Mode = "offset"
linearpattern4.Offset = 80
linearpattern4.Occurrences = 2
body.Tip = linearpattern4
doc.recompute()

datumline3 = body.newObject("PartDesign::Line", "DatumLine002")
datumline3.Placement = App.Placement(App.Vector(0, 0, 0), App.Rotation(App.Vector(0, 0, 1), App.Vector(0.847998304, 0, 0.52999894)))
linearpattern5 = body.newObject("PartDesign::LinearPattern", "LinearPattern004")
linearpattern5.Originals = [groove9]
linearpattern5.Direction = (datumline3, [""])
linearpattern5.Mode = "offset"
linearpattern5.Offset = 94.339811
linearpattern5.Occurrences = 2
body.Tip = linearpattern5
doc.recompute()

mirrored7 = body.newObject("PartDesign::Mirrored", "Mirrored006")
mirrored7.Originals = [groove9]
mirrored7.MirrorPlane = (doc.getObject("XZ_Plane"), [""])
body.Tip = mirrored7

sketch15 = body.newObject("Sketcher::SketchObject", "Sketch014")
sketch15.AttachmentSupport = (doc.getObject("YZ_Plane"), [""])
sketch15.MapMode = "FlatFace"
sketch15.AttachmentOffset = App.Placement(App.Vector(0, 0, -40), App.Rotation())
add_polygon(sketch15, [(26, 25), (9.497848, 25), (11, 22.5), (26, 22.5)])
sketch15.addGeometry(Part.LineSegment(App.Vector(9.497848, 25, 0), App.Vector(26, 25, 0)), True)
sketch15.addConstraint([
    Sketcher.Constraint("Horizontal", 0),
    Sketcher.Constraint("Horizontal", 2),
    Sketcher.Constraint("Vertical", 3),
    Sketcher.Constraint("Horizontal", 4),
    Sketcher.Constraint("Coincident", 4, 1, 0, 2),
    Sketcher.Constraint("Vertical", 2, 2, 4, 2),
    Sketcher.Constraint("DistanceX", 2, 1, 2, 2, Q("15 mm")),
    Sketcher.Constraint("Angle", 1, Q("-59 deg")),
    Sketcher.Constraint("DistanceY", 3, 1, 3, 2, Q("2.5 mm")),
    Sketcher.Constraint("DistanceY", -1, 1, 0, 2, Q("25 mm")),
    Sketcher.Constraint("DistanceX", -1, 1, 1, 2, Q("11 mm")),
])
groove10 = body.newObject("PartDesign::Groove", "Groove009")
groove10.Profile = sketch15
groove10.ReferenceAxis = (sketch15, ["Axis0"])
groove10.Angle = 360

sketch16 = body.newObject("Sketcher::SketchObject", "Sketch015")
sketch16.AttachmentSupport = (doc.getObject("YZ_Plane"), [""])
sketch16.MapMode = "FlatFace"
sketch16.AttachmentOffset = App.Placement(App.Vector(0, 0, 40), App.Rotation())
add_polygon(sketch16, [(26, -25), (9.497848, -25), (11, -27.5), (26, -27.5)])
sketch16.addGeometry(Part.LineSegment(App.Vector(9.497848, -25, 0), App.Vector(26, -25, 0)), True)
sketch16.addConstraint([
    Sketcher.Constraint("Horizontal", 0),
    Sketcher.Constraint("Horizontal", 2),
    Sketcher.Constraint("Vertical", 3),
    Sketcher.Constraint("Horizontal", 4),
    Sketcher.Constraint("Coincident", 4, 1, 0, 2),
    Sketcher.Constraint("Vertical", 2, 2, 4, 2),
    Sketcher.Constraint("DistanceX", 2, 1, 2, 2, Q("15 mm")),
    Sketcher.Constraint("Angle", 1, Q("-59 deg")),
    Sketcher.Constraint("DistanceY", 3, 1, 3, 2, Q("2.5 mm")),
    Sketcher.Constraint("DistanceY", 0, 2, -1, 1, Q("25 mm")),
    Sketcher.Constraint("DistanceX", -1, 1, 1, 2, Q("11 mm")),
])
groove11 = body.newObject("PartDesign::Groove", "Groove010")
groove11.Profile = sketch16
groove11.ReferenceAxis = (sketch16, ["Axis0"])
groove11.Angle = 360

sketch17 = body.newObject("Sketcher::SketchObject", "Sketch016")
sketch17.AttachmentSupport = (doc.getObject("YZ_Plane"), [""])
sketch17.MapMode = "FlatFace"
sketch17.AttachmentOffset = App.Placement(App.Vector(0, 0, 40), App.Rotation())
add_polygon(sketch17, [(26, 25), (9.497848, 25), (11, 22.5), (26, 22.5)])
sketch17.addGeometry(Part.LineSegment(App.Vector(9.497848, 25, 0), App.Vector(26, 25, 0)), True)
sketch17.addConstraint([
    Sketcher.Constraint("Horizontal", 0),
    Sketcher.Constraint("Horizontal", 2),
    Sketcher.Constraint("Vertical", 3),
    Sketcher.Constraint("Horizontal", 4),
    Sketcher.Constraint("Coincident", 4, 1, 0, 2),
    Sketcher.Constraint("Vertical", 2, 2, 4, 2),
    Sketcher.Constraint("DistanceX", 2, 1, 2, 2, Q("15 mm")),
    Sketcher.Constraint("Angle", 1, Q("-59 deg")),
    Sketcher.Constraint("DistanceY", 3, 1, 3, 2, Q("2.5 mm")),
    Sketcher.Constraint("DistanceY", -1, 1, 0, 2, Q("25 mm")),
    Sketcher.Constraint("DistanceX", -1, 1, 1, 2, Q("11 mm")),
])
groove12 = body.newObject("PartDesign::Groove", "Groove011")
groove12.Profile = sketch17
groove12.ReferenceAxis = (sketch17, ["Axis0"])
groove12.Angle = 360

doc.recompute()
